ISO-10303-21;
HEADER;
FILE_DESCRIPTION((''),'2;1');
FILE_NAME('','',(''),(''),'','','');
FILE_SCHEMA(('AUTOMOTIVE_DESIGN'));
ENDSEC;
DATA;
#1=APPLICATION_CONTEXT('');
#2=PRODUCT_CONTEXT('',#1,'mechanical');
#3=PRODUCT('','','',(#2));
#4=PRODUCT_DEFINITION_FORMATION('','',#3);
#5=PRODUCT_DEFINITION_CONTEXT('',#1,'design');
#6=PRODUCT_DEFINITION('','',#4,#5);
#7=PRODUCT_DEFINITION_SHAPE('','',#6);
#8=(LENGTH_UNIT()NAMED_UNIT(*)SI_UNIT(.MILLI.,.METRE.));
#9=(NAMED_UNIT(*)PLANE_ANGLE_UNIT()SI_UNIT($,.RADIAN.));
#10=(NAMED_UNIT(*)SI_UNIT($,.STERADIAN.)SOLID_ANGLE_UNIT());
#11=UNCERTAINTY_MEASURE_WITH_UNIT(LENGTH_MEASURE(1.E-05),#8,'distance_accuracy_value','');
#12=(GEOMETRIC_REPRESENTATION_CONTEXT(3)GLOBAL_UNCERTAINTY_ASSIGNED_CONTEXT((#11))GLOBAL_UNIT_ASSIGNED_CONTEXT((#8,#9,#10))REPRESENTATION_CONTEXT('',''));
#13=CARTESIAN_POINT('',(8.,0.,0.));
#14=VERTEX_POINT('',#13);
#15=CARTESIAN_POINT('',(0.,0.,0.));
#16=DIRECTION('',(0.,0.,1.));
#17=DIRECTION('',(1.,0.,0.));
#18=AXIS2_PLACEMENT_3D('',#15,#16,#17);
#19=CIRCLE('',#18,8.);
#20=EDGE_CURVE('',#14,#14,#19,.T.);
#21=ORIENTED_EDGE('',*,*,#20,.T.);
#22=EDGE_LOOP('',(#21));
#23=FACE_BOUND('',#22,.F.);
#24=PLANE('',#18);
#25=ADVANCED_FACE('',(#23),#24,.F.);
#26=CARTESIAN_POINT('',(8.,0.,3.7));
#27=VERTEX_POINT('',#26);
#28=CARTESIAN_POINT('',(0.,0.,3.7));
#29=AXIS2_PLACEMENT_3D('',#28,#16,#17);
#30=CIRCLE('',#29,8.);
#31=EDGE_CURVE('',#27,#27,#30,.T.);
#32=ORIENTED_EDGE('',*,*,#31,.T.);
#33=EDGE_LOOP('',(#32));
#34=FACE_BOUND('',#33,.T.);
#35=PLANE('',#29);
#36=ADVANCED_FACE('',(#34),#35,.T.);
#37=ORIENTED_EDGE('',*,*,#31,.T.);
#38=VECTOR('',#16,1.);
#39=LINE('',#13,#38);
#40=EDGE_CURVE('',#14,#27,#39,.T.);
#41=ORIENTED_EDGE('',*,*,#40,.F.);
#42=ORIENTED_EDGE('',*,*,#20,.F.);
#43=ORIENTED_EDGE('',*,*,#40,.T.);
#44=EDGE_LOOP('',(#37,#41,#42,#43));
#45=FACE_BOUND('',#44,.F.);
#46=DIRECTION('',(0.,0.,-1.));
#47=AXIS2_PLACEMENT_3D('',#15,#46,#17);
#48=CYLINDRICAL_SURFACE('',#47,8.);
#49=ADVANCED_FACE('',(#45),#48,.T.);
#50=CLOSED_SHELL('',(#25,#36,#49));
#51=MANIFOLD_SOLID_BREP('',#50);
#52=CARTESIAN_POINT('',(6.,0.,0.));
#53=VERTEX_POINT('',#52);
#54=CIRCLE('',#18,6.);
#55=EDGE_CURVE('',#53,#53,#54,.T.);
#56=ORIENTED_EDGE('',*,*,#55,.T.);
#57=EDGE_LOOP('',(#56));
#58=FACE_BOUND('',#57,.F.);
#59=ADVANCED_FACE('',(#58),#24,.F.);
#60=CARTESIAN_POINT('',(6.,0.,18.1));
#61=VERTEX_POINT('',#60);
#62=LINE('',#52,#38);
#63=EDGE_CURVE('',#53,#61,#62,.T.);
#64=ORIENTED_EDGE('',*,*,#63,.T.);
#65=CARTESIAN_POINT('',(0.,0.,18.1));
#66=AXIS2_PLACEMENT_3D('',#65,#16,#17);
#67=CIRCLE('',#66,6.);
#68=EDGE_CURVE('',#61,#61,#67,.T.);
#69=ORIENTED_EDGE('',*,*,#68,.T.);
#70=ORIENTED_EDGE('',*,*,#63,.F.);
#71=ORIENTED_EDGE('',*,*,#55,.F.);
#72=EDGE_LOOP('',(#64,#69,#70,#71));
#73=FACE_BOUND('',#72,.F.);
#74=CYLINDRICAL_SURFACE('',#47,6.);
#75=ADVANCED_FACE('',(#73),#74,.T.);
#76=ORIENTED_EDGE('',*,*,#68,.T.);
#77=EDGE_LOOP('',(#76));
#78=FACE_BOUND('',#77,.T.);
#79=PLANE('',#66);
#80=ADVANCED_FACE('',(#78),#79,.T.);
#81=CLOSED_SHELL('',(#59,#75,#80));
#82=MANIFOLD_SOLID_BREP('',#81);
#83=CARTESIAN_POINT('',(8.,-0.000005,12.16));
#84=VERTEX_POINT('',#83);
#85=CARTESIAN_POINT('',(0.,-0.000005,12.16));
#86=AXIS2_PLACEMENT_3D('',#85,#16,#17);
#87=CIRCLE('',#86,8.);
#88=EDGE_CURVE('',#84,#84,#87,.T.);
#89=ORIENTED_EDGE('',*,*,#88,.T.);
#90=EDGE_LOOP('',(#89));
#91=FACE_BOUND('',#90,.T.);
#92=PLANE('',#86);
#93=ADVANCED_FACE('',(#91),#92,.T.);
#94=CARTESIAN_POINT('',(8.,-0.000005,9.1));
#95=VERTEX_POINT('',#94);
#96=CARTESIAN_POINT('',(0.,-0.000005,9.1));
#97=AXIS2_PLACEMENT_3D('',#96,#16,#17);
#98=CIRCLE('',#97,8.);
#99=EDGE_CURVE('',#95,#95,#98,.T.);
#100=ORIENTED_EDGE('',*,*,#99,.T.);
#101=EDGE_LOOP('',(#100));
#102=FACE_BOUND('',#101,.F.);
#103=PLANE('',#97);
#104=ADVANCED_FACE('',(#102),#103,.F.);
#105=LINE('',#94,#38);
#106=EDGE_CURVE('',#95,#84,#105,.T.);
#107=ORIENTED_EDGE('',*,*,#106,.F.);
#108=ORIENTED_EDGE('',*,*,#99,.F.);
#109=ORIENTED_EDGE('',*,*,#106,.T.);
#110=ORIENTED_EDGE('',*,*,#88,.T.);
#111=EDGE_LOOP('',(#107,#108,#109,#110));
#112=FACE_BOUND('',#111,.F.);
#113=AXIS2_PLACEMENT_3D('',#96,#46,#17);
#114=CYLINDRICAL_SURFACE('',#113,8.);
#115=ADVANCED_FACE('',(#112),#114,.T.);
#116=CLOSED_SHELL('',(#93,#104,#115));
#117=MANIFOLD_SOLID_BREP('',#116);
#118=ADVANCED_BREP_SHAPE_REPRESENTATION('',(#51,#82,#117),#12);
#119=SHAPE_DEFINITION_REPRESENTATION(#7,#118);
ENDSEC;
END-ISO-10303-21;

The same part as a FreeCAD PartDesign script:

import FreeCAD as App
import Part
import Sketcher

V = App.Vector
Q = App.Units.Quantity

doc = App.newDocument("Part")
params = doc.addObject("Spreadsheet::Sheet", "Params")
for row, (alias, value) in enumerate([
    ("sketch1_diameter", "16 mm"),
    ("pad1_length", "3.7 mm"),
    ("sketch2_diameter", "16 mm"),
    ("pad2_length", "3.06 mm"),
    ("sketch3_diameter", "12 mm"),
    ("pad3_length", "18.1 mm"),
], start=1):
    params.set(f"A{row}", alias)
    params.set(f"B{row}", "=" + value)
    params.setAlias(f"B{row}", alias)

body = doc.addObject("PartDesign::Body", "Body")

sketch1 = body.newObject("Sketcher::SketchObject", "Sketch")
sketch1.AttachmentSupport = (doc.getObject("XY_Plane"), [""])
sketch1.MapMode = "FlatFace"
sketch1.addGeometry(Part.Circle(V(0, 0, 0), V(0, 0, 1), 8), False)
sketch1.addConstraint([
    Sketcher.Constraint("Coincident", 0, 3, -1, 1),
    Sketcher.Constraint("Diameter", 0, Q("16 mm")),
])
sketch1.setExpression("Constraints[1]", "Params.sketch1_diameter")
pad1 = body.newObject("PartDesign::Pad", "Pad")
pad1.Profile = sketch1
pad1.setExpression("Length", "Params.pad1_length")
body2 = doc.addObject("PartDesign::Body", "Body001")

sketch2 = body2.newObject("Sketcher::SketchObject", "Sketch001")
sketch2.AttachmentSupport = (doc.getObject("XY_Plane001"), [""])
sketch2.MapMode = "FlatFace"
sketch2.AttachmentOffset = App.Placement(V(0, 0, 9.1), App.Rotation())
sketch2.addGeometry(Part.Circle(V(0, -0.000005, 0), V(0, 0, 1), 8), False)
sketch2.addConstraint([
    Sketcher.Constraint("Coincident", 0, 3, -1, 1),
    Sketcher.Constraint("Diameter", 0, Q("16 mm")),
])
sketch2.setExpression("Constraints[1]", "Params.sketch2_diameter")
pad2 = body2.newObject("PartDesign::Pad", "Pad001")
pad2.Profile = sketch2
pad2.setExpression("Length", "Params.pad2_length")
body3 = doc.addObject("PartDesign::Body", "Body002")

sketch3 = body3.newObject("Sketcher::SketchObject", "Sketch002")
sketch3.AttachmentSupport = (doc.getObject("XY_Plane002"), [""])
sketch3.MapMode = "FlatFace"
sketch3.addGeometry(Part.Circle(V(0, 0, 0), V(0, 0, 1), 6), False)
sketch3.addConstraint([
    Sketcher.Constraint("Coincident", 0, 3, -1, 1),
    Sketcher.Constraint("Diameter", 0, Q("12 mm")),
])
sketch3.setExpression("Constraints[1]", "Params.sketch3_diameter")
pad3 = body3.newObject("PartDesign::Pad", "Pad002")
pad3.Profile = sketch3
pad3.setExpression("Length", "Params.pad3_length")

doc.recompute()
